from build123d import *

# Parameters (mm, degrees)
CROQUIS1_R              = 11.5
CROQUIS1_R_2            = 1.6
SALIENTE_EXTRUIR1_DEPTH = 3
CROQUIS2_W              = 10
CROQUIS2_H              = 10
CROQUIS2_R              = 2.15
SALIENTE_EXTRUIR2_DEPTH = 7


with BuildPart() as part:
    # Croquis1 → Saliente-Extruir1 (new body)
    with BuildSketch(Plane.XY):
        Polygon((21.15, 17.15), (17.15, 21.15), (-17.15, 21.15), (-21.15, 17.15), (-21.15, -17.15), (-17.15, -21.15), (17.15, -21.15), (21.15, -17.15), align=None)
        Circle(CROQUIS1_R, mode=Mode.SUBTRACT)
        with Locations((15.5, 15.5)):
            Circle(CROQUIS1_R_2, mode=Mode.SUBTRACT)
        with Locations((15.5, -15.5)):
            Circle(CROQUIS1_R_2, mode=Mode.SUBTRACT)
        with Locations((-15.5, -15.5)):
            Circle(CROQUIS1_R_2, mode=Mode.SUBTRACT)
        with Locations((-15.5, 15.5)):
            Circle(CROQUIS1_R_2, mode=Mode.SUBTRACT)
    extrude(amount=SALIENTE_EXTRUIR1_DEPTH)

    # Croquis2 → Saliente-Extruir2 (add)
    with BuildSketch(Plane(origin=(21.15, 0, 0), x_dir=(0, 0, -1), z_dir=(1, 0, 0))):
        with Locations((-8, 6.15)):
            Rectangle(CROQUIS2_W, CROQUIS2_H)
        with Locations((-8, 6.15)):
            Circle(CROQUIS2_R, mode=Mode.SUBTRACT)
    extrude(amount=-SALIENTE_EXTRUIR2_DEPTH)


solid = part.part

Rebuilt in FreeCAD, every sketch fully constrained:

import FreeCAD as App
import Part
import Sketcher

V = App.Vector


def add_polygon(sketch, points):
    """Adds a closed chain of lines whose ends are joined by coincident constraints."""
    first, n = sketch.GeometryCount, len(points)
    for a, b in zip(points, points[1:] + points[:1]):
        sketch.addGeometry(Part.LineSegment(App.Vector(*a, 0), App.Vector(*b, 0)), False)
    for i in range(n):
        sketch.addConstraint(Sketcher.Constraint("Coincident", first + i, 2, first + (i + 1) % n, 1))

doc = App.newDocument("Part")
body = doc.addObject("PartDesign::Body", "Body")

sketch1 = body.newObject("Sketcher::SketchObject", "Sketch")
sketch1.AttachmentSupport = (doc.getObject("XY_Plane"), [""])
sketch1.MapMode = "FlatFace"
add_polygon(sketch1, [(21.1, 17.1), (17.1, 21.1), (-17.1, 21.1), (-21.1, 17.1), (-21.1, -17.1), (-17.1, -21.1), (17.1, -21.1), (21.1, -17.1)])
sketch1.addGeometry(Part.Circle(V(-15.5, -15.5, 0), V(0, 0, 1), 1.6), False)
sketch1.addGeometry(Part.Circle(V(15.5, -15.5, 0), V(0, 0, 1), 1.6), False)
sketch1.addGeometry(Part.Circle(V(-15.5, 15.5, 0), V(0, 0, 1), 1.6), False)
sketch1.addGeometry(Part.Circle(V(0, 0, 0), V(0, 0, 1), 11.5), False)
sketch1.addGeometry(Part.Circle(V(15.5, 15.5, 0), V(0, 0, 1), 1.6), False)
sketch1.addConstraint([
    Sketcher.Constraint("Horizontal", 1),
    Sketcher.Constraint("Vertical", 3),
    Sketcher.Constraint("Horizontal", 5),
    Sketcher.Constraint("Vertical", 7),
    Sketcher.Constraint("Coincident", 11, 3, -1, 1),
    Sketcher.Constraint("Equal", 8, 9),
    Sketcher.Constraint("Equal", 9, 10),
    Sketcher.Constraint("Equal", 10, 12),
    Sketcher.Constraint("Symmetric", 9, 3, 10, 3, -1, 1),
    Sketcher.Constraint("Symmetric", 8, 3, 12, 3, -1, 1),
    Sketcher.Constraint("Symmetric", 0, 2, 4, 2, -1, 1),
    Sketcher.Constraint("Symmetric", 2, 2, 6, 2, -1, 1),
    Sketcher.Constraint("Symmetric", 8, 3, 9, 3, -2),
    Sketcher.Constraint("Perpendicular", 0, 2),
    Sketcher.Constraint("Perpendicular", 2, 4),
    Sketcher.Constraint("Perpendicular", 4, 6),
    Sketcher.Constraint("Horizontal", 3, 2, 6, 2),
    Sketcher.Constraint("Vertical", 1, 2, 4, 2),
    Sketcher.Constraint("Equal", 5, 3),
    Sketcher.Constraint("Diameter", 11, 23.0),
    Sketcher.Constraint("Diameter", 8, 3.2),
    Sketcher.Constraint("DistanceX", 1, 2, 1, 1, 34.3),
    Sketcher.Constraint("DistanceX", 8, 3, 9, 3, 31.0),
    Sketcher.Constraint("DistanceY", 8, 3, 10, 3, 31.0),
    Sketcher.Constraint("DistanceX", 2, 2, 1, 2, 4.0),
])
pad1 = body.newObject("PartDesign::Pad", "Pad")
pad1.Profile = sketch1
pad1.Length = 3

sketch2 = body.newObject("Sketcher::SketchObject", "Sketch001")
sketch2.AttachmentSupport = (doc.getObject("YZ_Plane"), [""])
sketch2.MapMode = "FlatFace"
sketch2.AttachmentOffset = App.Placement(V(0, 0, 21.15), App.Rotation())
add_polygon(sketch2, [(11.2, 13), (1.1, 13), (1.1, 3), (11.2, 3)])
sketch2.addGeometry(Part.Circle(V(6.2, 8, 0), V(0, 0, 1), 2.1), False)
sketch2.addConstraint([
    Sketcher.Constraint("Horizontal", 0),
    Sketcher.Constraint("Vertical", 1),
    Sketcher.Constraint("Horizontal", 2),
    Sketcher.Constraint("Vertical", 3),
    Sketcher.Constraint("Equal", 2, 1),
    Sketcher.Constraint("Diameter", 4, 4.3),
    Sketcher.Constraint("DistanceX", 0, 2, 0, 1, 10.0),
    Sketcher.Constraint("DistanceY", -1, 1, 4, 3, 8.0),
    Sketcher.Constraint("DistanceY", -1, 1, 0, 2, 13.0),
    Sketcher.Constraint("DistanceX", 0, 2, 4, 3, 5.0),
    Sketcher.Constraint("DistanceX", -1, 1, 4, 3, 6.15),
])
pad2 = body.newObject("PartDesign::Pad", "Pad001")
pad2.Profile = sketch2
pad2.Length = 7
pad2.Reversed = True

doc.recompute()
